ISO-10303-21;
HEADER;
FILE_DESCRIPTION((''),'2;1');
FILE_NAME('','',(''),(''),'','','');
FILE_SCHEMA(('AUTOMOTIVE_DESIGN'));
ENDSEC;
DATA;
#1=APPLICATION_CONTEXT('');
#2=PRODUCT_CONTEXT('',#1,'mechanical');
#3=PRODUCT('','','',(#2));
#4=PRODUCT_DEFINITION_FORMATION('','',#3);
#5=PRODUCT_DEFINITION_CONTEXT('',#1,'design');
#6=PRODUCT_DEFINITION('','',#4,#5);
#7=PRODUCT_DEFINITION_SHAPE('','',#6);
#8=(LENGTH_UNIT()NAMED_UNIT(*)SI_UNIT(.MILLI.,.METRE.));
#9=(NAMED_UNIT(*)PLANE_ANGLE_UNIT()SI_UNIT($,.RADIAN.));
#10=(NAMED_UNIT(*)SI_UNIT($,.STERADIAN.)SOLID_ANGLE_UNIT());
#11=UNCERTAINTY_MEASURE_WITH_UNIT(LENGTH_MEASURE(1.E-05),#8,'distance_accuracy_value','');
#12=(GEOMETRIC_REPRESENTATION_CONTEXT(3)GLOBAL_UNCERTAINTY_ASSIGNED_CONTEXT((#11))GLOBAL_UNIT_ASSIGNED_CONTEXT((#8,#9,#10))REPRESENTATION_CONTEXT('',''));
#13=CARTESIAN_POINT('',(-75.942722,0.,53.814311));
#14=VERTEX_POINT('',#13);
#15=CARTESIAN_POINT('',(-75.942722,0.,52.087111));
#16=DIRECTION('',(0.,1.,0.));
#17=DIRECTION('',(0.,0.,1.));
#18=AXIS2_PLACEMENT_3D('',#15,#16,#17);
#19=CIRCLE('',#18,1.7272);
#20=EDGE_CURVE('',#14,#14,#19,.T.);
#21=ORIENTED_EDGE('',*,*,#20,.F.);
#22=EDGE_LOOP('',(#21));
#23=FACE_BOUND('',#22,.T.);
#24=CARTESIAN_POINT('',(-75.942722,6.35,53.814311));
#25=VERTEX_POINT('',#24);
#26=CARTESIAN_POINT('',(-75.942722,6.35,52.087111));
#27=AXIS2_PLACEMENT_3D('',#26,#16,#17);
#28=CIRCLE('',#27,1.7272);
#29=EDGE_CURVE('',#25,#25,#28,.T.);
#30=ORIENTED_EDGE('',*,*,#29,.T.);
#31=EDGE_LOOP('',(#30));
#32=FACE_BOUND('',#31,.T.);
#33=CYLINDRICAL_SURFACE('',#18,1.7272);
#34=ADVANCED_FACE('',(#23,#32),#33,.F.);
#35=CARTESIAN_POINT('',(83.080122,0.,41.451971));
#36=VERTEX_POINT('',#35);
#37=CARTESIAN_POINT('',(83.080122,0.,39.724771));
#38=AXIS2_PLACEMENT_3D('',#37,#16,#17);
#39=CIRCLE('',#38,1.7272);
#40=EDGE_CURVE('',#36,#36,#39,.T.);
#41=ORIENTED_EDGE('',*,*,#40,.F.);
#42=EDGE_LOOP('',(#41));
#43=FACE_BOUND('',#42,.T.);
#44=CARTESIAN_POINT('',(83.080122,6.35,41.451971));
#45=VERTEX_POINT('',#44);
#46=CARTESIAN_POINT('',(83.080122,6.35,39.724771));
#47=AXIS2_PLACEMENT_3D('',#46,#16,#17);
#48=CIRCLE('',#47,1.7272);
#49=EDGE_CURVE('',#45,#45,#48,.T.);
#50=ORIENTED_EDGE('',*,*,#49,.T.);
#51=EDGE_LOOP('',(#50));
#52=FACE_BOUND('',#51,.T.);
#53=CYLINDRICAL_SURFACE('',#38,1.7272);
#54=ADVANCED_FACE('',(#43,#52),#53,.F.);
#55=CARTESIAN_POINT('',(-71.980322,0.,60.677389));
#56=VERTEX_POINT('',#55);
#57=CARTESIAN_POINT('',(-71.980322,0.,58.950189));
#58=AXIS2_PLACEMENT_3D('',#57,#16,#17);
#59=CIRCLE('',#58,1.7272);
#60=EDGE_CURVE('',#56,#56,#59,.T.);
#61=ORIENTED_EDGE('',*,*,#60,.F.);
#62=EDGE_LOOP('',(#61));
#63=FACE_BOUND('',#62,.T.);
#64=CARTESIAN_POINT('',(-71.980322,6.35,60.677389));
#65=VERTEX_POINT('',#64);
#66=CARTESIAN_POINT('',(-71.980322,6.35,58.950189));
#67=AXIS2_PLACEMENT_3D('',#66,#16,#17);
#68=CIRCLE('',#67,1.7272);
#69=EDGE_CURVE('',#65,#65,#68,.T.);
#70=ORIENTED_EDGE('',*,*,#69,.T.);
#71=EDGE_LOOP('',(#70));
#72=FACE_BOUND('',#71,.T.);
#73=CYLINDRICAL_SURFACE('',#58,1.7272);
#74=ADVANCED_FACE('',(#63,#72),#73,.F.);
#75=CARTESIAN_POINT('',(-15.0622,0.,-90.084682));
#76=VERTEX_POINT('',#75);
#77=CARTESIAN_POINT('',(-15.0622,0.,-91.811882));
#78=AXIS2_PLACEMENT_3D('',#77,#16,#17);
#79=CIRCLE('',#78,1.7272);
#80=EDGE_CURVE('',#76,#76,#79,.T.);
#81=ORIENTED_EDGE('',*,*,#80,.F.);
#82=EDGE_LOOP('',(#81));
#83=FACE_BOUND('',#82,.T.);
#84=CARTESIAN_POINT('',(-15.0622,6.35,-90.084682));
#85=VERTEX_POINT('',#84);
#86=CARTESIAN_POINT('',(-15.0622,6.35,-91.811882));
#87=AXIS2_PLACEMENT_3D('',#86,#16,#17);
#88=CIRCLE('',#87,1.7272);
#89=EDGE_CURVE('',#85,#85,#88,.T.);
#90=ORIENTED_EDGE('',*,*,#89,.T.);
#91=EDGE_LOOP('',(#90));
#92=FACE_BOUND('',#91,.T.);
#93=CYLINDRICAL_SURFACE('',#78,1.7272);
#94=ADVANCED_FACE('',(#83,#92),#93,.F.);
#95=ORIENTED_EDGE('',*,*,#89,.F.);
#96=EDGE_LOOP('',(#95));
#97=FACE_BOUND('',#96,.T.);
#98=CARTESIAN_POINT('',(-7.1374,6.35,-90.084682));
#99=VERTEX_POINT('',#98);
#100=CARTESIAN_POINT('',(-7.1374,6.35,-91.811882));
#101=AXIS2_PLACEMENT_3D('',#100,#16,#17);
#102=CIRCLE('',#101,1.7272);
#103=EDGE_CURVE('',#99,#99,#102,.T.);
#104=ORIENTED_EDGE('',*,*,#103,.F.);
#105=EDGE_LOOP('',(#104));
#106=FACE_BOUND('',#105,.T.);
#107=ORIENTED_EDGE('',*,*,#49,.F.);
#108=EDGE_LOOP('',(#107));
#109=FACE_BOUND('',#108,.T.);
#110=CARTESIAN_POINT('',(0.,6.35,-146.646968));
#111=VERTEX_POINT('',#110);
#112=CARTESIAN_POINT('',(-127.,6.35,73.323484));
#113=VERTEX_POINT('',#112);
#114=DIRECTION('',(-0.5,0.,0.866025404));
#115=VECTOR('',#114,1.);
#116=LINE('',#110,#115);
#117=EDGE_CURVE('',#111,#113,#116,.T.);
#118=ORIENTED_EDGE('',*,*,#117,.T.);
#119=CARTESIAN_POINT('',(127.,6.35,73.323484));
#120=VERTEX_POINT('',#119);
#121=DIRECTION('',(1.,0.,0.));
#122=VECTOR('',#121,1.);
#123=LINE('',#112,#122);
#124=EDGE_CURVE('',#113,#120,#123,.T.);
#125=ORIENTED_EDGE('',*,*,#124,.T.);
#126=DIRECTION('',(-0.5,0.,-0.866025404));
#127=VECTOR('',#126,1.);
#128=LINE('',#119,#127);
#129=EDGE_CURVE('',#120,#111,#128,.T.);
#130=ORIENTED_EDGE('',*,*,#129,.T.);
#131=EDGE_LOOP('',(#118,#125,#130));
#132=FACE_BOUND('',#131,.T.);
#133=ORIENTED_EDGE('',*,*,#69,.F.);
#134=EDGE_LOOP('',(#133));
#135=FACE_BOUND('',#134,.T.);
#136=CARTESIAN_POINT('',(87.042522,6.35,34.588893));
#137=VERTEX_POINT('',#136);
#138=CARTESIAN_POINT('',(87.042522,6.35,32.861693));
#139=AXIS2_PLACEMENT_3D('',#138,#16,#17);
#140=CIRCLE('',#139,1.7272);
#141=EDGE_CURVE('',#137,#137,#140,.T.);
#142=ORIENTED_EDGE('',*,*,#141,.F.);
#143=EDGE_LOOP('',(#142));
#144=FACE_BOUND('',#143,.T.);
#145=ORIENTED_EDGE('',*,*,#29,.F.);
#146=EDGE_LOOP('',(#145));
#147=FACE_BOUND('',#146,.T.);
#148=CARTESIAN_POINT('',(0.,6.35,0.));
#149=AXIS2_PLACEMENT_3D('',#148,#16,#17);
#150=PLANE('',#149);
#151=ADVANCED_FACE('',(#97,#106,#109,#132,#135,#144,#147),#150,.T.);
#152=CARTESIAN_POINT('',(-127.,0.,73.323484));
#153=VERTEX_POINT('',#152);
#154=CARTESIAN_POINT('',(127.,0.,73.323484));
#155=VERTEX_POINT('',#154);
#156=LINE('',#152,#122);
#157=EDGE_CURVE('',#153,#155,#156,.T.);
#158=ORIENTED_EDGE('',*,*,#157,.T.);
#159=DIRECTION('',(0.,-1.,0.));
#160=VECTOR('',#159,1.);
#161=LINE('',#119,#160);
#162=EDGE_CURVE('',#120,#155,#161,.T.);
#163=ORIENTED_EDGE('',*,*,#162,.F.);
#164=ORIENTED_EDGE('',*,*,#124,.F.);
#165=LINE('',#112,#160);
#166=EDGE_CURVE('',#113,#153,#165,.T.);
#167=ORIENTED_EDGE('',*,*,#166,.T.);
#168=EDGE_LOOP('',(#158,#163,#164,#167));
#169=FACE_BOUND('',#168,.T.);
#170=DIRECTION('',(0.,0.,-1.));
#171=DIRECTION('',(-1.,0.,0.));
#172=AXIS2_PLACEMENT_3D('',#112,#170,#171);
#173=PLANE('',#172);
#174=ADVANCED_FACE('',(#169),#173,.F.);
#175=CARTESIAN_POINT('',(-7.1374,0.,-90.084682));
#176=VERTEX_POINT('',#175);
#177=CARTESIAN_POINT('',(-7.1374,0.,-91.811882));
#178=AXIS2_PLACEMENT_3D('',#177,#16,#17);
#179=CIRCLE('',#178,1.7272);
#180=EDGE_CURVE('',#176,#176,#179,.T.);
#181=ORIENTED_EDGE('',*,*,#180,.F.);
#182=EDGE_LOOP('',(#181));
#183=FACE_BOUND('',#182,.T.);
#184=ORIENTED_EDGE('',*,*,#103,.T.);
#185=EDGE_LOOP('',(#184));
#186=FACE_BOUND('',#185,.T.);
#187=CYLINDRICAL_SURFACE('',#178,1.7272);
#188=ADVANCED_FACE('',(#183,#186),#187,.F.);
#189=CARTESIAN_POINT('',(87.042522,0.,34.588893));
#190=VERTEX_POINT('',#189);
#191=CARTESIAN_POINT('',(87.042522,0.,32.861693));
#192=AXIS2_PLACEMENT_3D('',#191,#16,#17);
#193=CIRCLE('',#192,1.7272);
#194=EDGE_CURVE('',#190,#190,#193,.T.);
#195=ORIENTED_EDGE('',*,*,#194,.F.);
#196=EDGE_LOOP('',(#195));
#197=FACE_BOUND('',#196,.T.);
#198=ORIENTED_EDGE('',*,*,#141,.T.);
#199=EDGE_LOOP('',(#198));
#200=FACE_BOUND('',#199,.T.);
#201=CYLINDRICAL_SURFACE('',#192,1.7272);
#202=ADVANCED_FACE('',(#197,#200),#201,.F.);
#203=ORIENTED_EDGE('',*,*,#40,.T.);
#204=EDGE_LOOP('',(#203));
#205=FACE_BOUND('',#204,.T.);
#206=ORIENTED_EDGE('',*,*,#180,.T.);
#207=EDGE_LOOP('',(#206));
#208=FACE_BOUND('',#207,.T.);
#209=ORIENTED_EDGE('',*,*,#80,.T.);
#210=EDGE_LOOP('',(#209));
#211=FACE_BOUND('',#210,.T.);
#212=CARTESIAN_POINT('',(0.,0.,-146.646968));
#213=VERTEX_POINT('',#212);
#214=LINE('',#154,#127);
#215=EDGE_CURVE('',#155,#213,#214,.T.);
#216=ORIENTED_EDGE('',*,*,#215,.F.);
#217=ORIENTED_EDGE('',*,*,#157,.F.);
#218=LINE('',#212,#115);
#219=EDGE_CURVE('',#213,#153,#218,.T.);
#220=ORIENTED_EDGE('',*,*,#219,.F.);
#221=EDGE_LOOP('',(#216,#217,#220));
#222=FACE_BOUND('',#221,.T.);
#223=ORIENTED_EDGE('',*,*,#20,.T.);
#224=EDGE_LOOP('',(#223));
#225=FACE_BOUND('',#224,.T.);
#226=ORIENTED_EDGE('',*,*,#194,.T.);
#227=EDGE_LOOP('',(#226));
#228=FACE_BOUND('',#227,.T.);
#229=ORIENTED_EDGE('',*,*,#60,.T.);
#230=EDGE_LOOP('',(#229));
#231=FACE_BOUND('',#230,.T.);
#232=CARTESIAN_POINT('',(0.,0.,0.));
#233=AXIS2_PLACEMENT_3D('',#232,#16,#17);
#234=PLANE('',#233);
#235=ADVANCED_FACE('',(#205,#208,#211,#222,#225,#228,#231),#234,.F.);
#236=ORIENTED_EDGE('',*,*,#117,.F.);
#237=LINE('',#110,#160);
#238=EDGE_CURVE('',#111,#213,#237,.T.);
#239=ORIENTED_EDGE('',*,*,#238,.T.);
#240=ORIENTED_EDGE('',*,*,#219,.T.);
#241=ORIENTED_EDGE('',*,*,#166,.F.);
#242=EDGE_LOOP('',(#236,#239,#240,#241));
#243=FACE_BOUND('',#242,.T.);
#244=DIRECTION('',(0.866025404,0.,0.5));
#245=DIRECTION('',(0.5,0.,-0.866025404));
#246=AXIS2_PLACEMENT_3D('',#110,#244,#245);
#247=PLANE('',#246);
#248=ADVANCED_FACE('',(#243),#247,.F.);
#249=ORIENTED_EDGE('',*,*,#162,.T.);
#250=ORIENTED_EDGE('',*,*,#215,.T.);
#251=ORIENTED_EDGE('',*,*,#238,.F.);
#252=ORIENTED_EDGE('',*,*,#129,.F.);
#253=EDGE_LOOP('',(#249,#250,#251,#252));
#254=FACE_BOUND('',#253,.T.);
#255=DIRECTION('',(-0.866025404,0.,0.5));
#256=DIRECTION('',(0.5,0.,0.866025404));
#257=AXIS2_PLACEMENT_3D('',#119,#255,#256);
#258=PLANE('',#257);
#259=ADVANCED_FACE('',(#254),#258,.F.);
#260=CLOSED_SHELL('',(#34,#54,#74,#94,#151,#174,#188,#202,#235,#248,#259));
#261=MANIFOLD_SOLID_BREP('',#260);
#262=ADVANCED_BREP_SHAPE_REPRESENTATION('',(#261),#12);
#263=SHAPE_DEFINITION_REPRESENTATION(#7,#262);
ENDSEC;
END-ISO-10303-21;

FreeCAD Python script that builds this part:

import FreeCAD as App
import Part
import Sketcher
Q = App.Units.Quantity


def add_polygon(sketch, points):
    """Adds a closed chain of lines whose ends are joined by coincident constraints."""
    first, n = sketch.GeometryCount, len(points)
    for a, b in zip(points, points[1:] + points[:1]):
        sketch.addGeometry(Part.LineSegment(App.Vector(*a, 0), App.Vector(*b, 0)), False)
    for i in range(n):
        sketch.addConstraint(Sketcher.Constraint("Coincident", first + i, 2, first + (i + 1) % n, 1))

doc = App.newDocument("Part")
params = doc.addObject("Spreadsheet::Sheet", "Params")
for row, (alias, value) in enumerate([
    ("sketch1_width", "10 in"),
    ("sketch1_length", "10 in"),
    ("pad1_length", "0.25 in"),
    ("sketch2_diameter", "0.136 in"),
], start=1):
    params.set(f"A{row}", alias)
    params.set(f"B{row}", "=" + value)
    params.setAlias(f"B{row}", alias)

body = doc.addObject("PartDesign::Body", "Body")

# Sketch on XZ plane
sketch1 = body.newObject("Sketcher::SketchObject", "Sketch")
sketch1.AttachmentSupport = (doc.getObject("XZ_Plane"), [""])
sketch1.MapMode = "FlatFace"
add_polygon(sketch1, [(0, -146.646968), (-127, 73.323484), (127, 73.323484)])  # lines 0-2
sketch1.addConstraint(Sketcher.Constraint("Horizontal", 1))
sketch1.addConstraint(Sketcher.Constraint("PointOnObject", 2, 2, -2))
sketch1.addConstraint(Sketcher.Constraint("Equal", 0, 2))
sketch1.addConstraint(Sketcher.Constraint("DistanceX", 1, 1, 1, 2, Q("10 in")))
sketch1.addConstraint(Sketcher.Constraint("Distance", 0, Q("10 in")))
sketch1.addConstraint(Sketcher.Constraint("DistanceY", 2, 2, -1, 1, Q("146.646968 mm")))
sketch1.setExpression("Constraints[6]", "Params.sketch1_width")
sketch1.setExpression("Constraints[7]", "Params.sketch1_length")
pad1 = body.newObject("PartDesign::Pad", "Pad")
pad1.Profile = sketch1
pad1.setExpression("Length", "Params.pad1_length")
pad1.Reversed = True

# Sketch on XZ plane
sketch2 = body.newObject("Sketcher::SketchObject", "Sketch001")
sketch2.AttachmentSupport = (doc.getObject("XZ_Plane"), [""])
sketch2.MapMode = "FlatFace"
sketch2.AttachmentOffset = App.Placement(App.Vector(0, 0, -0.25 * 25.4), App.Rotation())
sketch2.addGeometry(Part.Circle(App.Vector(83.080122, 39.724771, 0), App.Vector(0, 0, 1), 1.7272), False)
sketch2.addGeometry(Part.Circle(App.Vector(87.042522, 32.861693, 0), App.Vector(0, 0, 1), 1.7272), False)
sketch2.addGeometry(Part.Circle(App.Vector(-75.942722, 52.087111, 0), App.Vector(0, 0, 1), 1.7272), False)
sketch2.addGeometry(Part.Circle(App.Vector(-71.980322, 58.950189, 0), App.Vector(0, 0, 1), 1.7272), False)
sketch2.addGeometry(Part.Circle(App.Vector(-7.1374, -91.811882, 0), App.Vector(0, 0, 1), 1.7272), False)
sketch2.addGeometry(Part.Circle(App.Vector(-15.0622, -91.811882, 0), App.Vector(0, 0, 1), 1.7272), False)
sketch2.addConstraint(Sketcher.Constraint("Equal", 0, 1))
sketch2.addConstraint(Sketcher.Constraint("Equal", 1, 2))
sketch2.addConstraint(Sketcher.Constraint("Equal", 2, 3))
sketch2.addConstraint(Sketcher.Constraint("Equal", 3, 4))
sketch2.addConstraint(Sketcher.Constraint("Equal", 4, 5))
sketch2.addConstraint(Sketcher.Constraint("Horizontal", 4, 3, 5, 3))
sketch2.addConstraint(Sketcher.Constraint("Diameter", 0, Q("0.136 in")))
sketch2.addConstraint(Sketcher.Constraint("DistanceX", 4, 3, -1, 1, Q("0.281 in")))
sketch2.addConstraint(Sketcher.Constraint("DistanceX", 5, 3, -1, 1, Q("0.593 in")))
sketch2.addConstraint(Sketcher.Constraint("DistanceX", 0, 3, 1, 3, Q("0.156 in")))
sketch2.addConstraint(Sketcher.Constraint("DistanceX", 2, 3, 3, 3, Q("0.156 in")))
sketch2.addConstraint(Sketcher.Constraint("DistanceY", 1, 3, 0, 3, Q("0.2701999 in")))
sketch2.addConstraint(Sketcher.Constraint("DistanceY", 2, 3, 3, 3, Q("0.2701999 in")))
sketch2.addConstraint(Sketcher.Constraint("DistanceX", -1, 1, 0, 3, Q("83.080122 mm")))
sketch2.addConstraint(Sketcher.Constraint("DistanceY", -1, 1, 0, 3, Q("39.724771 mm")))
sketch2.addConstraint(Sketcher.Constraint("DistanceX", 2, 3, -1, 1, Q("75.942722 mm")))
sketch2.addConstraint(Sketcher.Constraint("DistanceY", -1, 1, 2, 3, Q("52.087111 mm")))
sketch2.addConstraint(Sketcher.Constraint("DistanceY", 4, 3, -1, 1, Q("91.811882 mm")))
sketch2.setExpression("Constraints[6]", "Params.sketch2_diameter")
pocket1 = body.newObject("PartDesign::Pocket", "Pocket")
pocket1.Profile = sketch2
pocket1.Type = "ThroughAll"
pocket1.Reversed = True

doc.recompute()
